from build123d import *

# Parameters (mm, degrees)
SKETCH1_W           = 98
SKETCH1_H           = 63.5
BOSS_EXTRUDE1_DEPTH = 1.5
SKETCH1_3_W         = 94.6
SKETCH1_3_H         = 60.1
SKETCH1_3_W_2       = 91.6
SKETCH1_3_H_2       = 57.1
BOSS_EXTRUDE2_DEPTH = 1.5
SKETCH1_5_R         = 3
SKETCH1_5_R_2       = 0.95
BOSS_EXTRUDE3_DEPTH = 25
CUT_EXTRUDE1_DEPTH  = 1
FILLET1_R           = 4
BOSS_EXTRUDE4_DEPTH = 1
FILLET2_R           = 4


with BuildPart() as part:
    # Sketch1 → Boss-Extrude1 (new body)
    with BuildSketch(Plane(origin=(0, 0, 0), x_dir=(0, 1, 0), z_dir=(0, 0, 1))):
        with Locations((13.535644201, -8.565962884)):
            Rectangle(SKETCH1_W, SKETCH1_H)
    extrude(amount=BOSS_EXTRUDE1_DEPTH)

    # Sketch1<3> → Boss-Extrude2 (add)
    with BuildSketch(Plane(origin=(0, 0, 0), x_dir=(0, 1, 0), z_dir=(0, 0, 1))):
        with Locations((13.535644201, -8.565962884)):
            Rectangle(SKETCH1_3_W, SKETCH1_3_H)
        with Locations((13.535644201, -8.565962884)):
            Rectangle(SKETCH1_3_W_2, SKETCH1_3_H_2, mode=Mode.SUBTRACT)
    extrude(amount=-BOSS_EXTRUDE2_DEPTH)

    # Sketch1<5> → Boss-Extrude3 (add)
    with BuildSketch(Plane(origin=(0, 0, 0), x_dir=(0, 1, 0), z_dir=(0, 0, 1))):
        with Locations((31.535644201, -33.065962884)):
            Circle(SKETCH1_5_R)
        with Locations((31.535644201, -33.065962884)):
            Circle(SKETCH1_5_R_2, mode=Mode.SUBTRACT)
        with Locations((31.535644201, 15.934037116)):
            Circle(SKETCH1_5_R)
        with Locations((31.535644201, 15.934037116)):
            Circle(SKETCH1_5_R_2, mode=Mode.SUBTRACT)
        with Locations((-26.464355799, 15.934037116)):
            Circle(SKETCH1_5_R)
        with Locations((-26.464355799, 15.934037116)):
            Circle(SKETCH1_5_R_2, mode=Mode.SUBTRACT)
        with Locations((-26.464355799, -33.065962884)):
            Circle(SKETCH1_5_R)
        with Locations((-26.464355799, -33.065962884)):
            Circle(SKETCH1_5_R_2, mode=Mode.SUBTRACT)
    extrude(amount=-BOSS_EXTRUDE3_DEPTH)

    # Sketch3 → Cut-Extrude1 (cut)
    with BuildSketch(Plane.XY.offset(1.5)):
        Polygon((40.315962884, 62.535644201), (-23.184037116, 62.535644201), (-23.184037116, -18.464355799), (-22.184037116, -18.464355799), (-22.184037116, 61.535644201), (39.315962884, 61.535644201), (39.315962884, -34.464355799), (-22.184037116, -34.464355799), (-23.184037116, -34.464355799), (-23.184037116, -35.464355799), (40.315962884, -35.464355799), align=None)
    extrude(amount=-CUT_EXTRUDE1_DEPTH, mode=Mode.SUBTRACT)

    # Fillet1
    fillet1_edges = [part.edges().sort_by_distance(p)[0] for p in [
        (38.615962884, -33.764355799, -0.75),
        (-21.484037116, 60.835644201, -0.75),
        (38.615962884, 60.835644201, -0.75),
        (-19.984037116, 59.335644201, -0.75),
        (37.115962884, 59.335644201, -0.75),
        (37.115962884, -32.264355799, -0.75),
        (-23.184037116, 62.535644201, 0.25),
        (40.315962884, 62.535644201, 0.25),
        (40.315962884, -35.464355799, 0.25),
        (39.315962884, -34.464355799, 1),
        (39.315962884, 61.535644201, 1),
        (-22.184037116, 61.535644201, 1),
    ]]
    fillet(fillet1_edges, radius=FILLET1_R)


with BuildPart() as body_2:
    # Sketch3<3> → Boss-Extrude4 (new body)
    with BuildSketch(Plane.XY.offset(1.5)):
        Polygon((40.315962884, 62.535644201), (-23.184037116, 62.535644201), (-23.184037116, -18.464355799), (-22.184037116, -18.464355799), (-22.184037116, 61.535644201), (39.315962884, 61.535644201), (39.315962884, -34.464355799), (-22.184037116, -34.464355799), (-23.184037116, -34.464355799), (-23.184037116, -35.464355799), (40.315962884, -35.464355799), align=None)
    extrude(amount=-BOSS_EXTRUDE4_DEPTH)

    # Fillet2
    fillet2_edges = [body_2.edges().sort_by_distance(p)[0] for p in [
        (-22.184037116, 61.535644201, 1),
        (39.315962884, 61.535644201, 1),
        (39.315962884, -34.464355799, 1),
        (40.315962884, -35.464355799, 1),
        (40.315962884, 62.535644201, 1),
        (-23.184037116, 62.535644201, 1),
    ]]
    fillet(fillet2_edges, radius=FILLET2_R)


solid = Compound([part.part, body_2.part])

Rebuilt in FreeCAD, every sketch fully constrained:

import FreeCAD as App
import Part
import Sketcher
from FreeCAD import Vector


def edges_at(feature, points):
    """Names of the edges that pass closest to the given points."""
    edges = feature.Shape.Edges
    near = lambda p: min(range(len(edges)), key=lambda i: edges[i].distToShape(Part.Vertex(*p))[0])
    return sorted({f"Edge{near(p) + 1}" for p in points})

doc = App.newDocument("Part")
body = doc.addObject("PartDesign::Body", "Body")

# Sketch on XY plane
sketch1 = body.newObject("Sketcher::SketchObject", "Sketch")
sketch1.AttachmentSupport = (doc.getObject("XY_Plane"), [""])
sketch1.MapMode = "FlatFace"
sketch1.addGeometry(Part.LineSegment(Vector(-23, -35, 0), Vector(40, -35, 0)), False)
sketch1.addGeometry(Part.LineSegment(Vector(40, -35, 0), Vector(40, 63, 0)), False)
sketch1.addGeometry(Part.LineSegment(Vector(40, 63, 0), Vector(-23, 63, 0)), False)
sketch1.addGeometry(Part.LineSegment(Vector(-23, 63, 0), Vector(-23, -35, 0)), False)
sketch1.addConstraint(Sketcher.Constraint("Coincident", 0, 2, 1, 1))
sketch1.addConstraint(Sketcher.Constraint("Coincident", 1, 2, 2, 1))
sketch1.addConstraint(Sketcher.Constraint("Coincident", 2, 2, 3, 1))
sketch1.addConstraint(Sketcher.Constraint("Coincident", 3, 2, 0, 1))
sketch1.addConstraint(Sketcher.Constraint("Horizontal", 0))
sketch1.addConstraint(Sketcher.Constraint("Vertical", 1))
sketch1.addConstraint(Sketcher.Constraint("Horizontal", 2))
sketch1.addConstraint(Sketcher.Constraint("Vertical", 3))
sketch1.addConstraint(Sketcher.Constraint("DistanceY", 1, 1, 1, 2, 98.0))
sketch1.addConstraint(Sketcher.Constraint("DistanceX", 0, 1, 0, 2, 63.5))
sketch1.addConstraint(Sketcher.Constraint("DistanceX", -1, 1, 0, 2, 40.315963))
sketch1.addConstraint(Sketcher.Constraint("DistanceY", 0, 2, -1, 1, 35.464356))
pad1 = body.newObject("PartDesign::Pad", "Pad")
pad1.Profile = sketch1
pad1.Length = 1.5

# Sketch on XY plane
sketch2 = body.newObject("Sketcher::SketchObject", "Sketch001")
sketch2.AttachmentSupport = (doc.getObject("XY_Plane"), [""])
sketch2.MapMode = "FlatFace"
sketch2.addGeometry(Part.LineSegment(Vector(-21, -34, 0), Vector(39, -34, 0)), False)
sketch2.addGeometry(Part.LineSegment(Vector(39, -34, 0), Vector(39, 61, 0)), False)
sketch2.addGeometry(Part.LineSegment(Vector(39, 61, 0), Vector(-21, 61, 0)), False)
sketch2.addGeometry(Part.LineSegment(Vector(-21, 61, 0), Vector(-21, -34, 0)), False)
sketch2.addGeometry(Part.LineSegment(Vector(37, 59, 0), Vector(37, -32, 0)), False)
sketch2.addGeometry(Part.LineSegment(Vector(37, -32, 0), Vector(-20, -32, 0)), False)
sketch2.addGeometry(Part.LineSegment(Vector(-20, -32, 0), Vector(-20, 59, 0)), False)
sketch2.addGeometry(Part.LineSegment(Vector(-20, 59, 0), Vector(37, 59, 0)), False)
sketch2.addConstraint(Sketcher.Constraint("Coincident", 0, 2, 1, 1))
sketch2.addConstraint(Sketcher.Constraint("Coincident", 1, 2, 2, 1))
sketch2.addConstraint(Sketcher.Constraint("Coincident", 2, 2, 3, 1))
sketch2.addConstraint(Sketcher.Constraint("Coincident", 3, 2, 0, 1))
sketch2.addConstraint(Sketcher.Constraint("Coincident", 4, 2, 5, 1))
sketch2.addConstraint(Sketcher.Constraint("Coincident", 5, 2, 6, 1))
sketch2.addConstraint(Sketcher.Constraint("Coincident", 6, 2, 7, 1))
sketch2.addConstraint(Sketcher.Constraint("Coincident", 7, 2, 4, 1))
sketch2.addConstraint(Sketcher.Constraint("Horizontal", 0))
sketch2.addConstraint(Sketcher.Constraint("Vertical", 1))
sketch2.addConstraint(Sketcher.Constraint("Horizontal", 2))
sketch2.addConstraint(Sketcher.Constraint("Vertical", 3))
sketch2.addConstraint(Sketcher.Constraint("Vertical", 4))
sketch2.addConstraint(Sketcher.Constraint("Horizontal", 5))
sketch2.addConstraint(Sketcher.Constraint("Vertical", 6))
sketch2.addConstraint(Sketcher.Constraint("Horizontal", 7))
sketch2.addConstraint(Sketcher.Constraint("DistanceX", 0, 1, 0, 2, 60.1))
sketch2.addConstraint(Sketcher.Constraint("DistanceX", 5, 2, 5, 1, 57.1))
sketch2.addConstraint(Sketcher.Constraint("DistanceY", 1, 1, 1, 2, 94.6))
sketch2.addConstraint(Sketcher.Constraint("DistanceY", 4, 2, 4, 1, 91.6))
sketch2.addConstraint(Sketcher.Constraint("DistanceX", 4, 2, 0, 2, 1.5))
sketch2.addConstraint(Sketcher.Constraint("DistanceY", 0, 2, 4, 2, 1.5))
sketch2.addConstraint(Sketcher.Constraint("DistanceX", -1, 1, 0, 2, 38.615963))
sketch2.addConstraint(Sketcher.Constraint("DistanceY", 0, 2, -1, 1, 33.764356))
pad2 = body.newObject("PartDesign::Pad", "Pad001")
pad2.Profile = sketch2
pad2.Length = 1.5
pad2.Reversed = True

# Sketch on XY plane
sketch3 = body.newObject("Sketcher::SketchObject", "Sketch002")
sketch3.AttachmentSupport = (doc.getObject("XY_Plane"), [""])
sketch3.MapMode = "FlatFace"
sketch3.addGeometry(Part.Circle(Vector(33.1, 31.5, 0), Vector(0, 0, 1), 3), False)
sketch3.addGeometry(Part.Circle(Vector(33.1, 31.5, 0), Vector(0, 0, 1), 0.9), False)
sketch3.addGeometry(Part.Circle(Vector(-15.9, 31.5, 0), Vector(0, 0, 1), 3), False)
sketch3.addGeometry(Part.Circle(Vector(-15.9, 31.5, 0), Vector(0, 0, 1), 0.9), False)
sketch3.addGeometry(Part.Circle(Vector(-15.9, -26.5, 0), Vector(0, 0, 1), 3), False)
sketch3.addGeometry(Part.Circle(Vector(-15.9, -26.5, 0), Vector(0, 0, 1), 0.9), False)
sketch3.addGeometry(Part.Circle(Vector(33.1, -26.5, 0), Vector(0, 0, 1), 3), False)
sketch3.addGeometry(Part.Circle(Vector(33.1, -26.5, 0), Vector(0, 0, 1), 0.9), False)
sketch3.addConstraint(Sketcher.Constraint("Coincident", 1, 3, 0, 3))
sketch3.addConstraint(Sketcher.Constraint("Coincident", 3, 3, 2, 3))
sketch3.addConstraint(Sketcher.Constraint("Coincident", 5, 3, 4, 3))
sketch3.addConstraint(Sketcher.Constraint("Coincident", 7, 3, 6, 3))
sketch3.addConstraint(Sketcher.Constraint("Equal", 0, 2))
sketch3.addConstraint(Sketcher.Constraint("Equal", 1, 3))
sketch3.addConstraint(Sketcher.Constraint("Equal", 2, 4))
sketch3.addConstraint(Sketcher.Constraint("Equal", 3, 5))
sketch3.addConstraint(Sketcher.Constraint("Equal", 4, 6))
sketch3.addConstraint(Sketcher.Constraint("Equal", 5, 7))
sketch3.addConstraint(Sketcher.Constraint("Horizontal", 1, 3, 2, 3))
sketch3.addConstraint(Sketcher.Constraint("Horizontal", 5, 3, 6, 3))
sketch3.addConstraint(Sketcher.Constraint("Vertical", 3, 3, 4, 3))
sketch3.addConstraint(Sketcher.Constraint("Vertical", 1, 3, 6, 3))
sketch3.addConstraint(Sketcher.Constraint("Diameter", 0, 6.0))
sketch3.addConstraint(Sketcher.Constraint("Diameter", 1, 1.9))
sketch3.addConstraint(Sketcher.Constraint("DistanceX", 2, 3, 0, 3, 49.0))
sketch3.addConstraint(Sketcher.Constraint("DistanceY", 4, 3, 2, 3, 58.0))
sketch3.addConstraint(Sketcher.Constraint("DistanceX", -1, 1, 0, 3, 33.065963))
sketch3.addConstraint(Sketcher.Constraint("DistanceY", -1, 1, 0, 3, 31.535644))
pad3 = body.newObject("PartDesign::Pad", "Pad002")
pad3.Profile = sketch3
pad3.Length = 25
pad3.Reversed = True

# Sketch on XY plane
sketch4 = body.newObject("Sketcher::SketchObject", "Sketch003")
sketch4.AttachmentSupport = (doc.getObject("XY_Plane"), [""])
sketch4.MapMode = "FlatFace"
sketch4.AttachmentOffset = App.Placement(Vector(0, 0, 1.5), App.Rotation())
sketch4.addGeometry(Part.LineSegment(Vector(40.3, 62.5, 0), Vector(-23.2, 62.5, 0)), False)
sketch4.addGeometry(Part.LineSegment(Vector(-23.2, 62.5, 0), Vector(-23.2, -18.5, 0)), False)
sketch4.addGeometry(Part.LineSegment(Vector(-23.2, -18.5, 0), Vector(-22.2, -18.5, 0)), False)
sketch4.addGeometry(Part.LineSegment(Vector(-22.2, -18.5, 0), Vector(-22.2, 61.5, 0)), False)
sketch4.addGeometry(Part.LineSegment(Vector(-22.2, 61.5, 0), Vector(39.3, 61.5, 0)), False)
sketch4.addGeometry(Part.LineSegment(Vector(39.3, 61.5, 0), Vector(39.3, -34.5, 0)), False)
sketch4.addGeometry(Part.LineSegment(Vector(39.3, -34.5, 0), Vector(-23.2, -34.5, 0)), False)
sketch4.addGeometry(Part.LineSegment(Vector(-23.2, -34.5, 0), Vector(-23.2, -35.5, 0)), False)
sketch4.addGeometry(Part.LineSegment(Vector(-23.2, -35.5, 0), Vector(40.3, -35.5, 0)), False)
sketch4.addGeometry(Part.LineSegment(Vector(40.3, -35.5, 0), Vector(40.3, 62.5, 0)), False)
sketch4.addConstraint(Sketcher.Constraint("Coincident", 0, 2, 1, 1))
sketch4.addConstraint(Sketcher.Constraint("Coincident", 1, 2, 2, 1))
sketch4.addConstraint(Sketcher.Constraint("Coincident", 2, 2, 3, 1))
sketch4.addConstraint(Sketcher.Constraint("Coincident", 3, 2, 4, 1))
sketch4.addConstraint(Sketcher.Constraint("Coincident", 4, 2, 5, 1))
sketch4.addConstraint(Sketcher.Constraint("Coincident", 5, 2, 6, 1))
sketch4.addConstraint(Sketcher.Constraint("Coincident", 6, 2, 7, 1))
sketch4.addConstraint(Sketcher.Constraint("Coincident", 7, 2, 8, 1))
sketch4.addConstraint(Sketcher.Constraint("Coincident", 8, 2, 9, 1))
sketch4.addConstraint(Sketcher.Constraint("Coincident", 9, 2, 0, 1))
sketch4.addConstraint(Sketcher.Constraint("Horizontal", 0))
sketch4.addConstraint(Sketcher.Constraint("Vertical", 1))
sketch4.addConstraint(Sketcher.Constraint("Horizontal", 2))
sketch4.addConstraint(Sketcher.Constraint("Vertical", 3))
sketch4.addConstraint(Sketcher.Constraint("Horizontal", 4))
sketch4.addConstraint(Sketcher.Constraint("Vertical", 5))
sketch4.addConstraint(Sketcher.Constraint("Horizontal", 6))
sketch4.addConstraint(Sketcher.Constraint("Vertical", 7))
sketch4.addConstraint(Sketcher.Constraint("Horizontal", 8))
sketch4.addConstraint(Sketcher.Constraint("Vertical", 9))
sketch4.addConstraint(Sketcher.Constraint("Vertical", 1, 2, 6, 2))
sketch4.addConstraint(Sketcher.Constraint("Equal", 2, 7))
sketch4.addConstraint(Sketcher.Constraint("DistanceX", 2, 1, 2, 2, 1.0))
sketch4.addConstraint(Sketcher.Constraint("DistanceY", 1, 2, 1, 1, 81.0))
sketch4.addConstraint(Sketcher.Constraint("DistanceY", 3, 1, 3, 2, 80.0))
sketch4.addConstraint(Sketcher.Constraint("DistanceY", 5, 2, 5, 1, 96.0))
sketch4.addConstraint(Sketcher.Constraint("DistanceX", 0, 2, 0, 1, 63.5))
sketch4.addConstraint(Sketcher.Constraint("DistanceX", 4, 1, 4, 2, 61.5))
sketch4.addConstraint(Sketcher.Constraint("DistanceX", 0, 2, -1, 1, 23.184037))
sketch4.addConstraint(Sketcher.Constraint("DistanceY", -1, 1, 0, 2, 62.535644))
pocket1 = body.newObject("PartDesign::Pocket", "Pocket")
pocket1.Profile = sketch4
pocket1.Length = 1
doc.recompute()

fillet = body.newObject("PartDesign::Fillet", "Fillet")
fillet.Base = (pocket1, edges_at(pocket1, [
    (38.616, -33.764, -0.75),
    (-21.484, 60.836, -0.75),
    (38.616, 60.836, -0.75),
    (-19.984, 59.336, -0.75),
    (37.116, 59.336, -0.75),
    (37.116, -32.264, -0.75),
    (-23.184, 62.536, 0.25),
    (40.316, 62.536, 0.25),
    (40.316, -35.464, 0.25),
    (39.316, -34.464, 1),
    (39.316, 61.536, 1),
    (-22.184, 61.536, 1),
]))
fillet.Radius = 4
body2 = doc.addObject("PartDesign::Body", "Body001")

# Sketch on XY plane
sketch5 = body2.newObject("Sketcher::SketchObject", "Sketch004")
sketch5.AttachmentSupport = (doc.getObject("XY_Plane001"), [""])
sketch5.MapMode = "FlatFace"
sketch5.AttachmentOffset = App.Placement(Vector(0, 0, 1.5), App.Rotation())
sketch5.addGeometry(Part.LineSegment(Vector(40.3, 62.5, 0), Vector(-23.2, 62.5, 0)), False)
sketch5.addGeometry(Part.LineSegment(Vector(-23.2, 62.5, 0), Vector(-23.2, -18.5, 0)), False)
sketch5.addGeometry(Part.LineSegment(Vector(-23.2, -18.5, 0), Vector(-22.2, -18.5, 0)), False)
sketch5.addGeometry(Part.LineSegment(Vector(-22.2, -18.5, 0), Vector(-22.2, 61.5, 0)), False)
sketch5.addGeometry(Part.LineSegment(Vector(-22.2, 61.5, 0), Vector(39.3, 61.5, 0)), False)
sketch5.addGeometry(Part.LineSegment(Vector(39.3, 61.5, 0), Vector(39.3, -34.5, 0)), False)
sketch5.addGeometry(Part.LineSegment(Vector(39.3, -34.5, 0), Vector(-23.2, -34.5, 0)), False)
sketch5.addGeometry(Part.LineSegment(Vector(-23.2, -34.5, 0), Vector(-23.2, -35.5, 0)), False)
sketch5.addGeometry(Part.LineSegment(Vector(-23.2, -35.5, 0), Vector(40.3, -35.5, 0)), False)
sketch5.addGeometry(Part.LineSegment(Vector(40.3, -35.5, 0), Vector(40.3, 62.5, 0)), False)
sketch5.addConstraint(Sketcher.Constraint("Coincident", 0, 2, 1, 1))
sketch5.addConstraint(Sketcher.Constraint("Coincident", 1, 2, 2, 1))
sketch5.addConstraint(Sketcher.Constraint("Coincident", 2, 2, 3, 1))
sketch5.addConstraint(Sketcher.Constraint("Coincident", 3, 2, 4, 1))
sketch5.addConstraint(Sketcher.Constraint("Coincident", 4, 2, 5, 1))
sketch5.addConstraint(Sketcher.Constraint("Coincident", 5, 2, 6, 1))
sketch5.addConstraint(Sketcher.Constraint("Coincident", 6, 2, 7, 1))
sketch5.addConstraint(Sketcher.Constraint("Coincident", 7, 2, 8, 1))
sketch5.addConstraint(Sketcher.Constraint("Coincident", 8, 2, 9, 1))
sketch5.addConstraint(Sketcher.Constraint("Coincident", 9, 2, 0, 1))
sketch5.addConstraint(Sketcher.Constraint("Horizontal", 0))
sketch5.addConstraint(Sketcher.Constraint("Vertical", 1))
sketch5.addConstraint(Sketcher.Constraint("Horizontal", 2))
sketch5.addConstraint(Sketcher.Constraint("Vertical", 3))
sketch5.addConstraint(Sketcher.Constraint("Horizontal", 4))
sketch5.addConstraint(Sketcher.Constraint("Vertical", 5))
sketch5.addConstraint(Sketcher.Constraint("Horizontal", 6))
sketch5.addConstraint(Sketcher.Constraint("Vertical", 7))
sketch5.addConstraint(Sketcher.Constraint("Horizontal", 8))
sketch5.addConstraint(Sketcher.Constraint("Vertical", 9))
sketch5.addConstraint(Sketcher.Constraint("Vertical", 1, 2, 6, 2))
sketch5.addConstraint(Sketcher.Constraint("Equal", 2, 7))
sketch5.addConstraint(Sketcher.Constraint("DistanceX", 2, 1, 2, 2, 1.0))
sketch5.addConstraint(Sketcher.Constraint("DistanceY", 1, 2, 1, 1, 81.0))
sketch5.addConstraint(Sketcher.Constraint("DistanceY", 3, 1, 3, 2, 80.0))
sketch5.addConstraint(Sketcher.Constraint("DistanceY", 5, 2, 5, 1, 96.0))
sketch5.addConstraint(Sketcher.Constraint("DistanceX", 0, 2, 0, 1, 63.5))
sketch5.addConstraint(Sketcher.Constraint("DistanceX", 4, 1, 4, 2, 61.5))
sketch5.addConstraint(Sketcher.Constraint("DistanceX", 0, 2, -1, 1, 23.184037))
sketch5.addConstraint(Sketcher.Constraint("DistanceY", -1, 1, 0, 2, 62.535644))
pad4 = body2.newObject("PartDesign::Pad", "Pad003")
pad4.Profile = sketch5
pad4.Length = 1
pad4.Reversed = True
doc.recompute()

fillet2 = body2.newObject("PartDesign::Fillet", "Fillet001")
fillet2.Base = (pad4, edges_at(pad4, [
    (-22.184, 61.536, 1),
    (39.316, 61.536, 1),
    (39.316, -34.464, 1),
    (40.316, -35.464, 1),
    (40.316, 62.536, 1),
    (-23.184, 62.536, 1),
]))
fillet2.Radius = 4

doc.recompute()
